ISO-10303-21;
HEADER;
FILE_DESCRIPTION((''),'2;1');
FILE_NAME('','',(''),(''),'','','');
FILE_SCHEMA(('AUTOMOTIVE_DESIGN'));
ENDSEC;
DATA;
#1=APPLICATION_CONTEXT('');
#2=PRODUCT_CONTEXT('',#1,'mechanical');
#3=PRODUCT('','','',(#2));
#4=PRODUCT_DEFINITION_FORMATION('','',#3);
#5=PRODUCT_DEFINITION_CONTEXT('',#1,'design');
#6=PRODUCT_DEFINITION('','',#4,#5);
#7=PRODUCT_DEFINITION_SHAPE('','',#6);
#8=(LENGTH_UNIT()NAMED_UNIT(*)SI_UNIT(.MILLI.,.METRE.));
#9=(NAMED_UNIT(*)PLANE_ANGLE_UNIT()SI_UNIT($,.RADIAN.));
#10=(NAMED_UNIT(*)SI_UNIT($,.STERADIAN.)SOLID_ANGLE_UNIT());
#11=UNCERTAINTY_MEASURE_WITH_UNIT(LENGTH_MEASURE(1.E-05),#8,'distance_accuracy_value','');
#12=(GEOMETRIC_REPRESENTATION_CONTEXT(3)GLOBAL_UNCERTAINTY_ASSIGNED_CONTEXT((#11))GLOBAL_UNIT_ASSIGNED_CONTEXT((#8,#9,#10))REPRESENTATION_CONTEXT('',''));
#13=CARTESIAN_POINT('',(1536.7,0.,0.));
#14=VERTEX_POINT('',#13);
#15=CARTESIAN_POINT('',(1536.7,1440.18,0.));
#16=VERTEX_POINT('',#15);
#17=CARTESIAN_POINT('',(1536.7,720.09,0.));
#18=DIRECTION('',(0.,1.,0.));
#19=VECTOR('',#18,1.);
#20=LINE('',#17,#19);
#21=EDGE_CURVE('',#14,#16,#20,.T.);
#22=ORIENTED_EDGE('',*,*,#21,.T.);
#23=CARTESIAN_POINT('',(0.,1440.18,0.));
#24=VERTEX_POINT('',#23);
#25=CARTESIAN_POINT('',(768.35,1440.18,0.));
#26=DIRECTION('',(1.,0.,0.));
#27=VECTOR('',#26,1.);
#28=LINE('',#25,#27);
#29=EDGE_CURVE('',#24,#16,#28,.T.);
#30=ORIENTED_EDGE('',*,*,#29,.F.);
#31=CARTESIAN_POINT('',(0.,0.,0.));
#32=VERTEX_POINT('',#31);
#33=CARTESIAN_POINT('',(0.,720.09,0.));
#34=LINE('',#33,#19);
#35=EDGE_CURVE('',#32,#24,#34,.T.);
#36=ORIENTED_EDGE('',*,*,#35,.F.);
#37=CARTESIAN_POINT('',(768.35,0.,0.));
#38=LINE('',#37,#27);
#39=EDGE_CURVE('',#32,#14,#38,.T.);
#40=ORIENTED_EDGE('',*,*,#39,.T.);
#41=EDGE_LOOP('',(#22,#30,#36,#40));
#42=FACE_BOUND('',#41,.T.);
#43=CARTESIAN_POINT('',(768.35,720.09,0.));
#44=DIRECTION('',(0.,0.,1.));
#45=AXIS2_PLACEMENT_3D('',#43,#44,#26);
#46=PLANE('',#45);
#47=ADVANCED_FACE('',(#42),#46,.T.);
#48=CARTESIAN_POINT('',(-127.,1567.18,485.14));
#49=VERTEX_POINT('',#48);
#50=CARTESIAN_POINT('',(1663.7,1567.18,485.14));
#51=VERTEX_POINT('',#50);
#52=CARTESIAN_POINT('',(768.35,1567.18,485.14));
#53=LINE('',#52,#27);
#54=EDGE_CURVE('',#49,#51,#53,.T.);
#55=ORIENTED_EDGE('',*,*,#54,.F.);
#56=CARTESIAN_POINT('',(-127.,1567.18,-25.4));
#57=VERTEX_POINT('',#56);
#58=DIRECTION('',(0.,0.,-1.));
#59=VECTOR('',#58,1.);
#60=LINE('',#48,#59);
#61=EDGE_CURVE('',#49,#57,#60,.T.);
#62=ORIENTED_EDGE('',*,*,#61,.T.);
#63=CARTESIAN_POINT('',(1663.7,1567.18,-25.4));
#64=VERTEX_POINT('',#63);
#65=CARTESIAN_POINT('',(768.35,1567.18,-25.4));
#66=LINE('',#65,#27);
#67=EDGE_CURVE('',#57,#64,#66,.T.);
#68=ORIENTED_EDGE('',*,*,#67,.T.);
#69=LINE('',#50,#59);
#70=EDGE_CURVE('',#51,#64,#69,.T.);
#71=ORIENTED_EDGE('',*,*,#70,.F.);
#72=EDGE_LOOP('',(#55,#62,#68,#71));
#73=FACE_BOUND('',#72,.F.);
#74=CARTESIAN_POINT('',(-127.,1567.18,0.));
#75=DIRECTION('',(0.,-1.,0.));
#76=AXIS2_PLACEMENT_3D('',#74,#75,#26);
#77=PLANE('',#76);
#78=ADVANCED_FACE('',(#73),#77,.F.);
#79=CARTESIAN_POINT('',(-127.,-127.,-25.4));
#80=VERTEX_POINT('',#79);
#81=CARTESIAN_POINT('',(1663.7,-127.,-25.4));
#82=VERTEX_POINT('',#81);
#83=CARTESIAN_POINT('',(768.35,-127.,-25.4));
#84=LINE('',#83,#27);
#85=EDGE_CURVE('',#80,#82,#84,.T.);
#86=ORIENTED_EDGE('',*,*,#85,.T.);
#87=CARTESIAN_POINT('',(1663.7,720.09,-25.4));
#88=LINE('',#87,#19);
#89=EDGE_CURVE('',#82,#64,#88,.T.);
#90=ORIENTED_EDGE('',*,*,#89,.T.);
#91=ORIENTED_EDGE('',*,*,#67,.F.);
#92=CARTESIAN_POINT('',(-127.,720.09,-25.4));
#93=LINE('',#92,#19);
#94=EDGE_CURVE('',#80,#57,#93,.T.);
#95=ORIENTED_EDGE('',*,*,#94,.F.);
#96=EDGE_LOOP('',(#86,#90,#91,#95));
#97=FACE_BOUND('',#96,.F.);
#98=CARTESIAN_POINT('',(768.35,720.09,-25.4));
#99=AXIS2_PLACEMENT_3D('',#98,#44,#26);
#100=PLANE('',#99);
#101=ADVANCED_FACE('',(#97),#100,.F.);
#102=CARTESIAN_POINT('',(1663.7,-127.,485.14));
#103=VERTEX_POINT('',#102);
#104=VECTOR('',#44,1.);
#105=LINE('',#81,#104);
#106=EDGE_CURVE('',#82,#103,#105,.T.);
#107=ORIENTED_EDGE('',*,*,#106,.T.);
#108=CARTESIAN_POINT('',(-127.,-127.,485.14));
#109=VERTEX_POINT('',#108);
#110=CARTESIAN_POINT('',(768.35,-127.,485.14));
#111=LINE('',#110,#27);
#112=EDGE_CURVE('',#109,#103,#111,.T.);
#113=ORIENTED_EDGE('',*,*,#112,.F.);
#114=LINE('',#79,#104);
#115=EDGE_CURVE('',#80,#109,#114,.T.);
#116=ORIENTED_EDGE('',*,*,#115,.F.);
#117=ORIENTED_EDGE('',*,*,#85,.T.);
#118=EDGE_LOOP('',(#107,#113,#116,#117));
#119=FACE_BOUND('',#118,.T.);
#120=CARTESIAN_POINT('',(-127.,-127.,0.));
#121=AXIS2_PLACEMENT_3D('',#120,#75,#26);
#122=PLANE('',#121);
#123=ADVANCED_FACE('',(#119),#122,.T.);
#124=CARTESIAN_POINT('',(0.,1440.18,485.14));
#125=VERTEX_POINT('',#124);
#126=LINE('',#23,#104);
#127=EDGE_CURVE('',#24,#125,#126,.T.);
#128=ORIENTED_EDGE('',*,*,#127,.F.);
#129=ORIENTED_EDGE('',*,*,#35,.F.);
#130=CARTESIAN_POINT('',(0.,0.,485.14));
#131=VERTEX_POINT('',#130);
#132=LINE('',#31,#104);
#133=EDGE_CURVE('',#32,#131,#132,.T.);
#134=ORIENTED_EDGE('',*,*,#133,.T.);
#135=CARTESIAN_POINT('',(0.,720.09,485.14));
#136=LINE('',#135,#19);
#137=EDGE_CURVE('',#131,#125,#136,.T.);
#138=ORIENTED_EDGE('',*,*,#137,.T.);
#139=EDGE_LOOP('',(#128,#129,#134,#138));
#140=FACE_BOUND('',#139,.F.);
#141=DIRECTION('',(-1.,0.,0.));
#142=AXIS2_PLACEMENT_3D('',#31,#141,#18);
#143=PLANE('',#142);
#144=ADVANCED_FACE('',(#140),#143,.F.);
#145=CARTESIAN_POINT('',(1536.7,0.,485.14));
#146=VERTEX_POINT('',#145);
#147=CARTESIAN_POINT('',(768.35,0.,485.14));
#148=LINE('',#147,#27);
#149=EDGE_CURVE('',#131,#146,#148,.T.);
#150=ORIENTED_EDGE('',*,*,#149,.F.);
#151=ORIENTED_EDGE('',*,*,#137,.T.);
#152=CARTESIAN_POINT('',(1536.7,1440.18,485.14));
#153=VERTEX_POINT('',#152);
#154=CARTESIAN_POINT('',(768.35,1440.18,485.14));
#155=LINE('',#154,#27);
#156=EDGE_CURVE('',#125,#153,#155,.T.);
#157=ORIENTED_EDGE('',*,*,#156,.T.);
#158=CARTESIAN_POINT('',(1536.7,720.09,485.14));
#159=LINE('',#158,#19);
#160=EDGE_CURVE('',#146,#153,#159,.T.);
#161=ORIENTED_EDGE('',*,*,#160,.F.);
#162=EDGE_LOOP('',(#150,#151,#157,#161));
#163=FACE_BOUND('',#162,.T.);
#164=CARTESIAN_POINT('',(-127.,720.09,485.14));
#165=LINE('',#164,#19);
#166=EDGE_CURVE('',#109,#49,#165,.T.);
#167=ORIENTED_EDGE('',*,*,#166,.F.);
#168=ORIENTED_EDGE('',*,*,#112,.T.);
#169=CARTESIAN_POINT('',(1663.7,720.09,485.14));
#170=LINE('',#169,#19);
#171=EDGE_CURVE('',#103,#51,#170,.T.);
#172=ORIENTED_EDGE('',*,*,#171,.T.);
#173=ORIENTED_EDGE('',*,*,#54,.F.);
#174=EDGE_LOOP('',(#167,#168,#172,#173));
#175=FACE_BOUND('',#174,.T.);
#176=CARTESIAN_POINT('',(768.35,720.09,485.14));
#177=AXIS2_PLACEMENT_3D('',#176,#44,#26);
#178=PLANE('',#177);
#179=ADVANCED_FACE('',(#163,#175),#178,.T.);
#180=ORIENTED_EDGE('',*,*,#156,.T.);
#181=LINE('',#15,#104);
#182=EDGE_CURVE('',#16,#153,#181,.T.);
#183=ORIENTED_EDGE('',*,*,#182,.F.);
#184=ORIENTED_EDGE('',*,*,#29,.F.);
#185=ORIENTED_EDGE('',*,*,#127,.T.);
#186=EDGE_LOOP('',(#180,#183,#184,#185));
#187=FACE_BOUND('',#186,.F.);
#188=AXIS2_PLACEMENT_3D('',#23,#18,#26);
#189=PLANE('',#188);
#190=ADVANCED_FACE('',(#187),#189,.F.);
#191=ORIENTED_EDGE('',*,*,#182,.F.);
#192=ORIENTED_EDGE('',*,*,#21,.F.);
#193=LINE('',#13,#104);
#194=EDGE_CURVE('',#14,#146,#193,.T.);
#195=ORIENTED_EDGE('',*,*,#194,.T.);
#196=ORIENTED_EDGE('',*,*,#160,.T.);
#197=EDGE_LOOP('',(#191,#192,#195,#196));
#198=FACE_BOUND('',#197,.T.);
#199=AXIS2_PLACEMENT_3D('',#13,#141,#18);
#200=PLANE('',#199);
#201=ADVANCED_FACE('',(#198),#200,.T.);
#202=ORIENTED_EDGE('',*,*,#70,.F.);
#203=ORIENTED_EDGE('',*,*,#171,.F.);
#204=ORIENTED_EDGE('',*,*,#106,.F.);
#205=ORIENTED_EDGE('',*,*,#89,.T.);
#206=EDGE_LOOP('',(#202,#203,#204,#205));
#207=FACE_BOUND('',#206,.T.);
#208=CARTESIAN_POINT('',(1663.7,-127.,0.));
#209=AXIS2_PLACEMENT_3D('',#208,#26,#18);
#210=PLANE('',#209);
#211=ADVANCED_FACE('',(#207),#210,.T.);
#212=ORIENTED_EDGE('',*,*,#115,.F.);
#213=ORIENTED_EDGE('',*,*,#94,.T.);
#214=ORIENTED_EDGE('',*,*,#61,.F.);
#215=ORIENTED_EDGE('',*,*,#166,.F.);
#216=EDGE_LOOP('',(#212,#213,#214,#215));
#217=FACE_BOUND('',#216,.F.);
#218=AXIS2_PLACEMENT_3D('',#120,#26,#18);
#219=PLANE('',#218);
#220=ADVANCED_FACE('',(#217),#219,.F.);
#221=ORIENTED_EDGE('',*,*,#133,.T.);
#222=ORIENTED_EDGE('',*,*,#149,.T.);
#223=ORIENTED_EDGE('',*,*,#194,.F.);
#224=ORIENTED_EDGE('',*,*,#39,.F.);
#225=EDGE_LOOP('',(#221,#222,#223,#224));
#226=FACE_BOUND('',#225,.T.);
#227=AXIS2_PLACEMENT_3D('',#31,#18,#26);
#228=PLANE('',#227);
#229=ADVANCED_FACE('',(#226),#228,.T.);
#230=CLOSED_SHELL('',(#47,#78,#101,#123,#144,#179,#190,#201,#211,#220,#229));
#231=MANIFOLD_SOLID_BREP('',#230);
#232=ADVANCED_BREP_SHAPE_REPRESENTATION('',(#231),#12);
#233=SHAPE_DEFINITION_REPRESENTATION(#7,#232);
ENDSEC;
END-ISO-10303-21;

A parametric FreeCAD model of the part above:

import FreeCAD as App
import Part
import Sketcher
Q = App.Units.Quantity


def add_polygon(sketch, points):
    """Adds a closed chain of lines whose ends are joined by coincident constraints."""
    first, n = sketch.GeometryCount, len(points)
    for a, b in zip(points, points[1:] + points[:1]):
        sketch.addGeometry(Part.LineSegment(App.Vector(*a, 0), App.Vector(*b, 0)), False)
    for i in range(n):
        sketch.addConstraint(Sketcher.Constraint("Coincident", first + i, 2, first + (i + 1) % n, 1))

doc = App.newDocument("Part")
body = doc.addObject("PartDesign::Body", "Body")

# Sketch on XY plane
sketch1 = body.newObject("Sketcher::SketchObject", "Sketch")
sketch1.AttachmentSupport = (doc.getObject("XY_Plane"), [""])
sketch1.MapMode = "FlatFace"
add_polygon(sketch1, [(-127, 1567.18), (-127, -127), (1663.7, -127), (1663.7, 1567.18)])  # lines 0-3
add_polygon(sketch1, [(1536.7, 0), (0, 0), (0, 1440.18), (1536.7, 1440.18)])  # lines 4-7
sketch1.addConstraint([
    Sketcher.Constraint("Vertical", 0),
    Sketcher.Constraint("Horizontal", 1),
    Sketcher.Constraint("Vertical", 2),
    Sketcher.Constraint("Horizontal", 3),
    Sketcher.Constraint("Horizontal", 4),
    Sketcher.Constraint("Vertical", 5),
    Sketcher.Constraint("Horizontal", 6),
    Sketcher.Constraint("Vertical", 7),
    Sketcher.Constraint("Coincident", 4, 2, -1, 1),
    Sketcher.Constraint("DistanceX", 1, 1, 1, 2, Q("70.5 in")),
    Sketcher.Constraint("DistanceX", 4, 2, 4, 1, Q("60.5 in")),
    Sketcher.Constraint("DistanceY", 0, 2, 0, 1, Q("66.7 in")),
    Sketcher.Constraint("DistanceY", 5, 1, 5, 2, Q("56.7 in")),
    Sketcher.Constraint("DistanceX", 0, 2, -1, 1, Q("5 in")),
    Sketcher.Constraint("DistanceY", 0, 2, -1, 1, Q("5 in")),
])
pad1 = body.newObject("PartDesign::Pad", "Pad")
pad1.Profile = sketch1
pad1.Length = Q("19.1 in")

# Sketch on XY plane
sketch2 = body.newObject("Sketcher::SketchObject", "Sketch001")
sketch2.AttachmentSupport = (doc.getObject("XY_Plane"), [""])
sketch2.MapMode = "FlatFace"
add_polygon(sketch2, [(-127, 1567.18), (-127, -127), (1663.7, -127), (1663.7, 1567.18)])  # lines 0-3
sketch2.addConstraint([
    Sketcher.Constraint("Vertical", 0),
    Sketcher.Constraint("Horizontal", 1),
    Sketcher.Constraint("Vertical", 2),
    Sketcher.Constraint("Horizontal", 3),
    Sketcher.Constraint("DistanceX", 1, 1, 1, 2, Q("70.5 in")),
    Sketcher.Constraint("DistanceY", 0, 2, 0, 1, Q("66.7 in")),
    Sketcher.Constraint("DistanceX", 0, 2, -1, 1, Q("5 in")),
    Sketcher.Constraint("DistanceY", 0, 2, -1, 1, Q("5 in")),
])
pad2 = body.newObject("PartDesign::Pad", "Pad001")
pad2.Profile = sketch2
pad2.Length = Q("1 in")
pad2.Reversed = True

doc.recompute()
